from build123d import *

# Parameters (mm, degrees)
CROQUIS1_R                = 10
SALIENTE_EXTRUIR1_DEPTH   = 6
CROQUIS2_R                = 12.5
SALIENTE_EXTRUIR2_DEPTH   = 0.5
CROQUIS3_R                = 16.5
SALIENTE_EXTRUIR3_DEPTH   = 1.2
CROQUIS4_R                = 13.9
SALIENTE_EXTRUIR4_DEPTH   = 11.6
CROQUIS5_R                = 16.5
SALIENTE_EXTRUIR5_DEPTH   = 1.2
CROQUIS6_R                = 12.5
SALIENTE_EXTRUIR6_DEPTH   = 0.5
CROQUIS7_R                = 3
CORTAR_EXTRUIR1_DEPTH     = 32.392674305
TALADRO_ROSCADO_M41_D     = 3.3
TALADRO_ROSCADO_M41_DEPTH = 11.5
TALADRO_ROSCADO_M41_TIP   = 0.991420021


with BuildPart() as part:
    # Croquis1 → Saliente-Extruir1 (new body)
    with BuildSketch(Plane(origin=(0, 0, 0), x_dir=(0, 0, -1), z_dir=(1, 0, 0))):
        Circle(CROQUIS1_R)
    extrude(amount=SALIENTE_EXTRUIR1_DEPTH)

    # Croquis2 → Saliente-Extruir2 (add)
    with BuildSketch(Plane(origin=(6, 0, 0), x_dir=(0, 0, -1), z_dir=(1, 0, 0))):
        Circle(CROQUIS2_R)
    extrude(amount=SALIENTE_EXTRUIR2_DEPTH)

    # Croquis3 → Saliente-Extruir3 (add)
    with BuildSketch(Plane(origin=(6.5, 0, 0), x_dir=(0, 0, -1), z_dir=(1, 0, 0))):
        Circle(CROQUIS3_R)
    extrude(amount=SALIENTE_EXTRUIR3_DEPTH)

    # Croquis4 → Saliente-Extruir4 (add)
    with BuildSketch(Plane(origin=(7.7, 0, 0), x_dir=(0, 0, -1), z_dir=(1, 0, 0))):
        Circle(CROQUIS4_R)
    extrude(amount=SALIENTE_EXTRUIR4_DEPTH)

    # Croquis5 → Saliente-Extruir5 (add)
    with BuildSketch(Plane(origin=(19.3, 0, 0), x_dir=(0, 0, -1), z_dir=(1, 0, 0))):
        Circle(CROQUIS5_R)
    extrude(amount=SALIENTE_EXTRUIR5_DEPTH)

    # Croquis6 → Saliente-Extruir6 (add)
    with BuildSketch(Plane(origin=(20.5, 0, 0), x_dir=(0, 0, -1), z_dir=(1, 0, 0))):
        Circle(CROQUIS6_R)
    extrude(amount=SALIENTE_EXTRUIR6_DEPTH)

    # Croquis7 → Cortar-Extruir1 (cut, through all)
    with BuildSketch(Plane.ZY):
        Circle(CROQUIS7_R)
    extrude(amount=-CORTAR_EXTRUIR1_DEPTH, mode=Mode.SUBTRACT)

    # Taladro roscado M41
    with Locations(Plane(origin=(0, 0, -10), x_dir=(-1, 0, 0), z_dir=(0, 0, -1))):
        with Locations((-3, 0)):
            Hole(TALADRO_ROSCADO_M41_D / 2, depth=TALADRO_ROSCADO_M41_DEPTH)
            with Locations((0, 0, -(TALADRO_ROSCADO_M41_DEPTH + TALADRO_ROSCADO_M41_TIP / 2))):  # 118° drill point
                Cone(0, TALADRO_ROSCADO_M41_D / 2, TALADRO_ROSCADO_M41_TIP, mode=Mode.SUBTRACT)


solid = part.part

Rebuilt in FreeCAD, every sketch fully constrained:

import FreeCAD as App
import Part
import Sketcher
from FreeCAD import Vector

doc = App.newDocument("Part")
body = doc.addObject("PartDesign::Body", "Body")

sketch1 = body.newObject("Sketcher::SketchObject", "Sketch")
sketch1.AttachmentSupport = (doc.getObject("YZ_Plane"), [""])
sketch1.MapMode = "FlatFace"
sketch1.addGeometry(Part.Circle(Vector(0, 0, 0), Vector(0, 0, 1), 10), False)
sketch1.addConstraint(Sketcher.Constraint("Coincident", 0, 3, -1, 1))
sketch1.addConstraint(Sketcher.Constraint("Diameter", 0, 20.0))
pad1 = body.newObject("PartDesign::Pad", "Pad")
pad1.Profile = sketch1
pad1.Length = 6

sketch2 = body.newObject("Sketcher::SketchObject", "Sketch001")
sketch2.AttachmentSupport = (doc.getObject("YZ_Plane"), [""])
sketch2.MapMode = "FlatFace"
sketch2.AttachmentOffset = App.Placement(Vector(0, 0, 6), App.Rotation())
sketch2.addGeometry(Part.Circle(Vector(0, 0, 0), Vector(0, 0, 1), 12), False)
sketch2.addConstraint(Sketcher.Constraint("Coincident", 0, 3, -1, 1))
sketch2.addConstraint(Sketcher.Constraint("Diameter", 0, 25.0))
pad2 = body.newObject("PartDesign::Pad", "Pad001")
pad2.Profile = sketch2
pad2.Length = 0.5

sketch3 = body.newObject("Sketcher::SketchObject", "Sketch002")
sketch3.AttachmentSupport = (doc.getObject("YZ_Plane"), [""])
sketch3.MapMode = "FlatFace"
sketch3.AttachmentOffset = App.Placement(Vector(0, 0, 6.5), App.Rotation())
sketch3.addGeometry(Part.Circle(Vector(0, 0, 0), Vector(0, 0, 1), 16), False)
sketch3.addConstraint(Sketcher.Constraint("Coincident", 0, 3, -1, 1))
sketch3.addConstraint(Sketcher.Constraint("Diameter", 0, 33.0))
pad3 = body.newObject("PartDesign::Pad", "Pad002")
pad3.Profile = sketch3
pad3.Length = 1.2

sketch4 = body.newObject("Sketcher::SketchObject", "Sketch003")
sketch4.AttachmentSupport = (doc.getObject("YZ_Plane"), [""])
sketch4.MapMode = "FlatFace"
sketch4.AttachmentOffset = App.Placement(Vector(0, 0, 7.7), App.Rotation())
sketch4.addGeometry(Part.Circle(Vector(0, 0, 0), Vector(0, 0, 1), 14), False)
sketch4.addConstraint(Sketcher.Constraint("Coincident", 0, 3, -1, 1))
sketch4.addConstraint(Sketcher.Constraint("Diameter", 0, 27.8))
pad4 = body.newObject("PartDesign::Pad", "Pad003")
pad4.Profile = sketch4
pad4.Length = 11.6

sketch5 = body.newObject("Sketcher::SketchObject", "Sketch004")
sketch5.AttachmentSupport = (doc.getObject("YZ_Plane"), [""])
sketch5.MapMode = "FlatFace"
sketch5.AttachmentOffset = App.Placement(Vector(0, 0, 19.3), App.Rotation())
sketch5.addGeometry(Part.Circle(Vector(0, 0, 0), Vector(0, 0, 1), 16), False)
sketch5.addConstraint(Sketcher.Constraint("Coincident", 0, 3, -1, 1))
sketch5.addConstraint(Sketcher.Constraint("Diameter", 0, 33.0))
pad5 = body.newObject("PartDesign::Pad", "Pad004")
pad5.Profile = sketch5
pad5.Length = 1.2

sketch6 = body.newObject("Sketcher::SketchObject", "Sketch005")
sketch6.AttachmentSupport = (doc.getObject("YZ_Plane"), [""])
sketch6.MapMode = "FlatFace"
sketch6.AttachmentOffset = App.Placement(Vector(0, 0, 20.5), App.Rotation())
sketch6.addGeometry(Part.Circle(Vector(0, 0, 0), Vector(0, 0, 1), 12), False)
sketch6.addConstraint(Sketcher.Constraint("Coincident", 0, 3, -1, 1))
sketch6.addConstraint(Sketcher.Constraint("Diameter", 0, 25.0))
pad6 = body.newObject("PartDesign::Pad", "Pad005")
pad6.Profile = sketch6
pad6.Length = 0.5

sketch7 = body.newObject("Sketcher::SketchObject", "Sketch006")
sketch7.AttachmentSupport = (doc.getObject("YZ_Plane"), [""])
sketch7.MapMode = "FlatFace"
sketch7.addGeometry(Part.Circle(Vector(0, 0, 0), Vector(0, 0, 1), 3), False)
sketch7.addConstraint(Sketcher.Constraint("Coincident", 0, 3, -1, 1))
sketch7.addConstraint(Sketcher.Constraint("Diameter", 0, 6.0))
pocket1 = body.newObject("PartDesign::Pocket", "Pocket")
pocket1.Profile = sketch7
pocket1.Type = "ThroughAll"
pocket1.Reversed = True

sketch8 = body.newObject("Sketcher::SketchObject", "Sketch007")
sketch8.AttachmentSupport = (doc.getObject("XY_Plane"), [""])
sketch8.MapMode = "FlatFace"
sketch8.AttachmentOffset = App.Placement(Vector(0, 0, -10), App.Rotation())
sketch8.addGeometry(Part.Circle(Vector(3, 0, 0), Vector(0, 0, 1), 1.6), False)
sketch8.addConstraint(Sketcher.Constraint("PointOnObject", 0, 3, -1))
sketch8.addConstraint(Sketcher.Constraint("Diameter", 0, 3.3))
sketch8.addConstraint(Sketcher.Constraint("DistanceX", -1, 1, 0, 3, 3.0))
doc.recompute()
hole = body.newObject("PartDesign::Hole", "Hole")
hole.Profile = sketch8
hole.ThreadType = "None"
hole.Diameter = 3.3
hole.DepthType = "Dimension"
hole.Depth = 11.5
hole.DrillPoint = "Angled"
hole.DrillPointAngle = 118
hole.Reversed = True

doc.recompute()
